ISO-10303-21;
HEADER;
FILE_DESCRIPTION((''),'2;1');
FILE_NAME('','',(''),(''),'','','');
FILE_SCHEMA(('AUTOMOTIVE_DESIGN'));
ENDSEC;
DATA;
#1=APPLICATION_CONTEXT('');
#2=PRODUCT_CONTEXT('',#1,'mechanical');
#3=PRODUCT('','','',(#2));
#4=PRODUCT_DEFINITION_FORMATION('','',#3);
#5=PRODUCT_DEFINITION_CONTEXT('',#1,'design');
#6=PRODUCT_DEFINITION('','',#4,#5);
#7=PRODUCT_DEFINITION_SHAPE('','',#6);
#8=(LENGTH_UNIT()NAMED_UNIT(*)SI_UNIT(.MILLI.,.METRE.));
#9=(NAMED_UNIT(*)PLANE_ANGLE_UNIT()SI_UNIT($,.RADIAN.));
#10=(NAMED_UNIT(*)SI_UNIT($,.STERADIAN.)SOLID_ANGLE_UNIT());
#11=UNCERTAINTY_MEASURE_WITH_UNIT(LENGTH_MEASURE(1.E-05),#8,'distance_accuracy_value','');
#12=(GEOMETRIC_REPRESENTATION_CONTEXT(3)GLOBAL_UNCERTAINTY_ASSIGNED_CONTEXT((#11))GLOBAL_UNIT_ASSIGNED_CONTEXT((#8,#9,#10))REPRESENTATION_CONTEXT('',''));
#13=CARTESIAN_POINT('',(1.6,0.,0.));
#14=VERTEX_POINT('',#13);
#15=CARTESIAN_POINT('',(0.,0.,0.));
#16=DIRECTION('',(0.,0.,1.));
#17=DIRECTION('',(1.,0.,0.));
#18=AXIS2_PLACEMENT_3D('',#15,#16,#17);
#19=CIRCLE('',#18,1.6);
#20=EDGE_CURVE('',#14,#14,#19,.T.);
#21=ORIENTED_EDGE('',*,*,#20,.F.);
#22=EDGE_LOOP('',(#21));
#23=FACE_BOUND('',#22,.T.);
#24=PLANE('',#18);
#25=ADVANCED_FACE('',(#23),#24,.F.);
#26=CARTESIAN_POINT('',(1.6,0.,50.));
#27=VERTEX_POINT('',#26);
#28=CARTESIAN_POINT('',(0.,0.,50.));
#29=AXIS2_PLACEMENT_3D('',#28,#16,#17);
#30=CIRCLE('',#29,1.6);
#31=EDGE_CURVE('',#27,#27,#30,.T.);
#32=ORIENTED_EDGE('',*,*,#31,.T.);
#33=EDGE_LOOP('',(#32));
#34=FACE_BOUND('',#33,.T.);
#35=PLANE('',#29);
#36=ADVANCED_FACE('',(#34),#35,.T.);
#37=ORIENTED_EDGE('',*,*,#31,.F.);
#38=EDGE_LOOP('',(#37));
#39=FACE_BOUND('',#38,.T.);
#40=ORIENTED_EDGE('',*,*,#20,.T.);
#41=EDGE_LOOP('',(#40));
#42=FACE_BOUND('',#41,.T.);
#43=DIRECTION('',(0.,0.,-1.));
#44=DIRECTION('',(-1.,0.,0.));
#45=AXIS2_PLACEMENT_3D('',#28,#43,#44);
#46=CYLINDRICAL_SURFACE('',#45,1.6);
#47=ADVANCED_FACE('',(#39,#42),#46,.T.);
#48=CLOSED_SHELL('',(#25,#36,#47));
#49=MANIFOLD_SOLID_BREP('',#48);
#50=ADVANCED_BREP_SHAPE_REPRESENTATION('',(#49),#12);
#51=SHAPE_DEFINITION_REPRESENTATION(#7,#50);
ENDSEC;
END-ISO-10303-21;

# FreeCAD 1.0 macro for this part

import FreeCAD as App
import Part
import Sketcher

V = App.Vector
Q = App.Units.Quantity

doc = App.newDocument("Part")
body = doc.addObject("PartDesign::Body", "Body")

# Sketch on XY plane
sketch1 = body.newObject("Sketcher::SketchObject", "Sketch")
sketch1.AttachmentSupport = (doc.getObject("XY_Plane"), [""])
sketch1.MapMode = "FlatFace"
sketch1.addGeometry(Part.Circle(V(0, 0, 0), V(0, 0, 1), 1.6), False)
sketch1.addConstraint(Sketcher.Constraint("Coincident", 0, 3, -1, 1))
sketch1.addConstraint(Sketcher.Constraint("Diameter", 0, Q("3.2 mm")))
pad1 = body.newObject("PartDesign::Pad", "Pad")
pad1.Profile = sketch1
pad1.Length = 50

doc.recompute()
